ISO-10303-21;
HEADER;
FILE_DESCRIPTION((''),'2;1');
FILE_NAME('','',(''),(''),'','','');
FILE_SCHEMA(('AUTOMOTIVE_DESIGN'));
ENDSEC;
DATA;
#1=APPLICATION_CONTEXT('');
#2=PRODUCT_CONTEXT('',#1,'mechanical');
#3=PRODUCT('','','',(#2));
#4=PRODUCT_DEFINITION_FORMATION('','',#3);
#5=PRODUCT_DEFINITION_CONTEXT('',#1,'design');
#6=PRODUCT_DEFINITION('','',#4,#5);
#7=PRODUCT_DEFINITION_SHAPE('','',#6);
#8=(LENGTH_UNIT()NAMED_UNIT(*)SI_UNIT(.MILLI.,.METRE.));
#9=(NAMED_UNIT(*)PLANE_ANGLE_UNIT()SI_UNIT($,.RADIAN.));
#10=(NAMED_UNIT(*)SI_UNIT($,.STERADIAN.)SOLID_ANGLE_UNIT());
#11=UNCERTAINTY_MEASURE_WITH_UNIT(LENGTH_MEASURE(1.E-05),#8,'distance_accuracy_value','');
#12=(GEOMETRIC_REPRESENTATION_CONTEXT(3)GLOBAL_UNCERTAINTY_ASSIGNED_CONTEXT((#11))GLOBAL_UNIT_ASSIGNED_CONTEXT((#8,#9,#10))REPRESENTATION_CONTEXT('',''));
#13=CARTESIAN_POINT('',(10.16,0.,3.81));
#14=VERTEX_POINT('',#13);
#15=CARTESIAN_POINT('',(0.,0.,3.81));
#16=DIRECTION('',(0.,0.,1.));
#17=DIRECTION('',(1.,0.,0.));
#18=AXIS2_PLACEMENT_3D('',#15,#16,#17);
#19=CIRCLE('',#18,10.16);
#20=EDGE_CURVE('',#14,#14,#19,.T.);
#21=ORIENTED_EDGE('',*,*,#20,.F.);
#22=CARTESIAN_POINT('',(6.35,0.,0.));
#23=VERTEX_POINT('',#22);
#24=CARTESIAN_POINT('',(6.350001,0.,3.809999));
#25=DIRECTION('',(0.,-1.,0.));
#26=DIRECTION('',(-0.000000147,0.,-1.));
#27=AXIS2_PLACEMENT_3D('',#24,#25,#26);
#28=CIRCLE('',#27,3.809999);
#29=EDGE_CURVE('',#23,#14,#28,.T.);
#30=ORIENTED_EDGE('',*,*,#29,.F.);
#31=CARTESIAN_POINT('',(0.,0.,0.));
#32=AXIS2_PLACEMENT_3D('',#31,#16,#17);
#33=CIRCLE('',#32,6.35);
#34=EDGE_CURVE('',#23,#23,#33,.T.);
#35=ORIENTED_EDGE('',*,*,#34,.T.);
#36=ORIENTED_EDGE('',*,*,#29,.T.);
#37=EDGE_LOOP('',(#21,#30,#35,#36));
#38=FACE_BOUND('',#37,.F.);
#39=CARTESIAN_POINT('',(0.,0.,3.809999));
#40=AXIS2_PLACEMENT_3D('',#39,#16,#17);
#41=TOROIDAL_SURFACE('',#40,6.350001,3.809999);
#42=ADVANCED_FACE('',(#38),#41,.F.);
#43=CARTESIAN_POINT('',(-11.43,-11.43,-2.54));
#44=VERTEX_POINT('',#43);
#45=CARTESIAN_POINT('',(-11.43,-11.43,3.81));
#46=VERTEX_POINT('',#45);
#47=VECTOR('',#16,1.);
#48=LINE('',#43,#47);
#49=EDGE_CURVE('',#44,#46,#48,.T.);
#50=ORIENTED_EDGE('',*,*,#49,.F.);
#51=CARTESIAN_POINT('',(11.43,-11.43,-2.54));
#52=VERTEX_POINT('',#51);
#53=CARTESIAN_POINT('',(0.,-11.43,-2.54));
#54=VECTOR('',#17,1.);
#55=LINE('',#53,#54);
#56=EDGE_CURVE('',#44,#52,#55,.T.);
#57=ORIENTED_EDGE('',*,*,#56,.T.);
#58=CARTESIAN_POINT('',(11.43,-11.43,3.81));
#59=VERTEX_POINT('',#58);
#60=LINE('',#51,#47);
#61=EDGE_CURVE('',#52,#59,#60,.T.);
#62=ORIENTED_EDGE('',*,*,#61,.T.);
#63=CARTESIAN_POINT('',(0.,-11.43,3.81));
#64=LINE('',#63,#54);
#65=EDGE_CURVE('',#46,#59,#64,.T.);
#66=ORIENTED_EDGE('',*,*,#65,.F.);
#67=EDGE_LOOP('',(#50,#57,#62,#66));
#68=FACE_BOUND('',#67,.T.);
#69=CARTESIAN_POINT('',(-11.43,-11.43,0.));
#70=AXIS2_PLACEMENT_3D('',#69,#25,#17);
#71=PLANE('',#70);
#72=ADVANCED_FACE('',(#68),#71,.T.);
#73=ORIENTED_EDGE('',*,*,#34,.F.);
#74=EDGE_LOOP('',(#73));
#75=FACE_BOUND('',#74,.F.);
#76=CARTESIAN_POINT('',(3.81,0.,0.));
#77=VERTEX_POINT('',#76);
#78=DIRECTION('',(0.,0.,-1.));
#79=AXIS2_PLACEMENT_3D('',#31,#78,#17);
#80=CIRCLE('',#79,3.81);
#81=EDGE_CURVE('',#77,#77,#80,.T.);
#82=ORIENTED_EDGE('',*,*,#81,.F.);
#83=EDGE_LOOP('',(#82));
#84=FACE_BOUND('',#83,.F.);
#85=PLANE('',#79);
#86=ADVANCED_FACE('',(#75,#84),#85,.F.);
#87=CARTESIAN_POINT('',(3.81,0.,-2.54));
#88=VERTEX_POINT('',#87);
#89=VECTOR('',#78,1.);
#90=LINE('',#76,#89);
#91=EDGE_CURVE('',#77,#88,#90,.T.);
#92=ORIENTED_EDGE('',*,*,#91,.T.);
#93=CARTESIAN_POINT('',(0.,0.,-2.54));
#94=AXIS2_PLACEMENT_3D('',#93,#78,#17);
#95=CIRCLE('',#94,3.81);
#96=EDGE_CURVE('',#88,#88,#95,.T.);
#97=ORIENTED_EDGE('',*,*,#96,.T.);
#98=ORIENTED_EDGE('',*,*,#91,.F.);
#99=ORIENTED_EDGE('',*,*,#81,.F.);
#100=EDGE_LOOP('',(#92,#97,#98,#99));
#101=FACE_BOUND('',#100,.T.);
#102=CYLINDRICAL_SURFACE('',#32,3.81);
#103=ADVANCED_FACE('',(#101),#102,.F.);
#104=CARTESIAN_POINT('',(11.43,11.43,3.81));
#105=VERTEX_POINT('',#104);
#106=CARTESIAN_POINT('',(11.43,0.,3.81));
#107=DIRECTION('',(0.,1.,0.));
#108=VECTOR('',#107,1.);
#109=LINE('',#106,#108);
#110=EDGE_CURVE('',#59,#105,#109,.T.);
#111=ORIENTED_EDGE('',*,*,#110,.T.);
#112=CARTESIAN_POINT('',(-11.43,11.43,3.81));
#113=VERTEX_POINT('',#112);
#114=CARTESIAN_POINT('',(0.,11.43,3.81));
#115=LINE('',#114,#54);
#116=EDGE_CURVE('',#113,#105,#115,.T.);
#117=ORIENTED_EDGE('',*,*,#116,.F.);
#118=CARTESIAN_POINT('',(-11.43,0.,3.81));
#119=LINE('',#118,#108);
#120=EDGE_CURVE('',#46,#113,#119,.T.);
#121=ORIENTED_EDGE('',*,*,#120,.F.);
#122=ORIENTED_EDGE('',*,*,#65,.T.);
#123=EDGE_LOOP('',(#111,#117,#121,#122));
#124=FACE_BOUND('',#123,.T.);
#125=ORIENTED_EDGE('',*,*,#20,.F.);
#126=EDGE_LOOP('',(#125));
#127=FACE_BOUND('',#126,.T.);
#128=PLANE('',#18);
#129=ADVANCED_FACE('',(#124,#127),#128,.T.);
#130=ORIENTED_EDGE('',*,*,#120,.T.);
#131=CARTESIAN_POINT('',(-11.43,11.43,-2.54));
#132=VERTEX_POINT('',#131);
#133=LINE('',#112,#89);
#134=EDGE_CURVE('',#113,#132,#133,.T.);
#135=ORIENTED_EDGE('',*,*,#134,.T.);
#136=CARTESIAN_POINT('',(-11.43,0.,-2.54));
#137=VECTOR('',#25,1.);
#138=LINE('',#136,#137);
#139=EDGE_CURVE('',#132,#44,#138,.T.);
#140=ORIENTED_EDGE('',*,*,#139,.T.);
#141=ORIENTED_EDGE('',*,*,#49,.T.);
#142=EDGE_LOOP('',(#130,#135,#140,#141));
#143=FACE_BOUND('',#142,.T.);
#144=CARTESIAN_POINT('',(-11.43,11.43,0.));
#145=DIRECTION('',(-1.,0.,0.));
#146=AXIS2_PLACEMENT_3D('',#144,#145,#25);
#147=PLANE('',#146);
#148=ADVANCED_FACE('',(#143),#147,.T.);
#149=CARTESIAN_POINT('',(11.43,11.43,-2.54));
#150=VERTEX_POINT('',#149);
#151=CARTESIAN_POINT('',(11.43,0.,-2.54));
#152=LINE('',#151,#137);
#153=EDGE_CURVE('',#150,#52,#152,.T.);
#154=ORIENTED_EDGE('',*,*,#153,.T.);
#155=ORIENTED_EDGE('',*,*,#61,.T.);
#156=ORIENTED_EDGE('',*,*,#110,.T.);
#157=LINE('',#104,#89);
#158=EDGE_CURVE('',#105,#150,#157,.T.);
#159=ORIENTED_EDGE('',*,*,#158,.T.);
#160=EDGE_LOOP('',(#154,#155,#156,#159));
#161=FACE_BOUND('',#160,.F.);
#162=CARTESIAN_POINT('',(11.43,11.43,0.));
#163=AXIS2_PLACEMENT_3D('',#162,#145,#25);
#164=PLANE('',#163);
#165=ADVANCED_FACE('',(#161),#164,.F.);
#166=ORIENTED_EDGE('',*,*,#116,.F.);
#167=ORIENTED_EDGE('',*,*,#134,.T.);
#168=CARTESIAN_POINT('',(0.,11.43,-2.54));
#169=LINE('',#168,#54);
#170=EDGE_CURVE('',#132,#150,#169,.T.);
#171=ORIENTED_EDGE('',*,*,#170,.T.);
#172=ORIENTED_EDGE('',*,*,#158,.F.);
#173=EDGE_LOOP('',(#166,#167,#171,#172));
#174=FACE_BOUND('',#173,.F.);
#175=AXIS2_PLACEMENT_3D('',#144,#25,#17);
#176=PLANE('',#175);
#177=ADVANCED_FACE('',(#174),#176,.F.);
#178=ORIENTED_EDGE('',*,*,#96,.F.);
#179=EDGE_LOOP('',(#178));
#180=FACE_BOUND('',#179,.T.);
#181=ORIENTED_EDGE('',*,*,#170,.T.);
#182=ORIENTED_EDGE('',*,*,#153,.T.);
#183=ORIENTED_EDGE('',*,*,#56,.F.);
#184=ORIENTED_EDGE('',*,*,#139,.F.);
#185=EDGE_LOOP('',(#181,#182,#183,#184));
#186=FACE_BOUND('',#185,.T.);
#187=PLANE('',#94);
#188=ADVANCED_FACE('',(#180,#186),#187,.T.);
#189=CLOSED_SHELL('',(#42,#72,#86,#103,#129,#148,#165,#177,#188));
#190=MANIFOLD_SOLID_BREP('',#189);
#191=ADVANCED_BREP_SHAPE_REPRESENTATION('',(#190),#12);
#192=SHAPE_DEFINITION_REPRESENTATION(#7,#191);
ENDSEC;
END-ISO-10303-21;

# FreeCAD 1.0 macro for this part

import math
import FreeCAD as App
import Part
import Sketcher

V = App.Vector
Q = App.Units.Quantity

doc = App.newDocument("Part")
params = doc.addObject("Spreadsheet::Sheet", "Params")
for row, (alias, value) in enumerate([
    ("sketch1_width", "0.9 in"),
    ("pad1_length", "0.15 in"),
    ("sketch2_radius", "0.15 in"),
    ("sketch2_width", "0.4 in"),
    ("sketch2_height", "0.15 in"),
    ("groove_angle", "360 deg"),
    ("sketch3_diameter", "0.3 in"),
    ("sketch3_width", "0.9 in"),
    ("pad2_length", "0.1 in"),
], start=1):
    params.set(f"A{row}", alias)
    params.set(f"B{row}", "=" + value)
    params.setAlias(f"B{row}", alias)

body = doc.addObject("PartDesign::Body", "Body")

# Sketch on XY plane
sketch1 = body.newObject("Sketcher::SketchObject", "Sketch")
sketch1.AttachmentSupport = (doc.getObject("XY_Plane"), [""])
sketch1.MapMode = "FlatFace"
sketch1.addGeometry(Part.LineSegment(V(-11.43, 11.43, 0), V(-11.43, -11.43, 0)), False)
sketch1.addGeometry(Part.LineSegment(V(-11.43, -11.43, 0), V(11.43, -11.43, 0)), False)
sketch1.addGeometry(Part.LineSegment(V(11.43, -11.43, 0), V(11.43, 11.43, 0)), False)
sketch1.addGeometry(Part.LineSegment(V(11.43, 11.43, 0), V(-11.43, 11.43, 0)), False)
sketch1.addConstraint(Sketcher.Constraint("Coincident", 0, 2, 1, 1))
sketch1.addConstraint(Sketcher.Constraint("Coincident", 1, 2, 2, 1))
sketch1.addConstraint(Sketcher.Constraint("Coincident", 2, 2, 3, 1))
sketch1.addConstraint(Sketcher.Constraint("Coincident", 3, 2, 0, 1))
sketch1.addConstraint(Sketcher.Constraint("Vertical", 0))
sketch1.addConstraint(Sketcher.Constraint("Horizontal", 1))
sketch1.addConstraint(Sketcher.Constraint("Vertical", 2))
sketch1.addConstraint(Sketcher.Constraint("Horizontal", 3))
sketch1.addConstraint(Sketcher.Constraint("Symmetric", 0, 2, 2, 2, -1, 1))
sketch1.addConstraint(Sketcher.Constraint("Equal", 3, 0))
sketch1.addConstraint(Sketcher.Constraint("DistanceX", 1, 1, 1, 2, Q("0.9 in")))
sketch1.setExpression("Constraints[10]", "Params.sketch1_width")
pad1 = body.newObject("PartDesign::Pad", "Pad")
pad1.Profile = sketch1
pad1.setExpression("Length", "Params.pad1_length")

# Sketch on XZ plane
sketch2 = body.newObject("Sketcher::SketchObject", "Sketch001")
sketch2.AttachmentSupport = (doc.getObject("XZ_Plane"), [""])
sketch2.MapMode = "FlatFace"
sketch2.addGeometry(Part.LineSegment(V(0, 3.81, 0), V(0, 0, 0)), False)
sketch2.addGeometry(Part.LineSegment(V(0, 0, 0), V(6.35, 0, 0)), False)
sketch2.addGeometry(Part.ArcOfCircle(Part.Circle(V(6.350001, 3.809999, 0), V(0, 0, 1), 3.809999), math.radians(-90.000008), math.radians(0.000008)), False)
sketch2.addGeometry(Part.LineSegment(V(10.16, 3.81, 0), V(0, 3.81, 0)), False)
sketch2.addConstraint(Sketcher.Constraint("Coincident", 0, 2, 1, 1))
sketch2.addConstraint(Sketcher.Constraint("Tangent", 1, 2, 2, 1))
sketch2.addConstraint(Sketcher.Constraint("Coincident", 2, 2, 3, 1))
sketch2.addConstraint(Sketcher.Constraint("Coincident", 3, 2, 0, 1))
sketch2.addConstraint(Sketcher.Constraint("Vertical", 0))
sketch2.addConstraint(Sketcher.Constraint("Horizontal", 1))
sketch2.addConstraint(Sketcher.Constraint("Horizontal", 3))
sketch2.addConstraint(Sketcher.Constraint("Coincident", 0, 2, -1, 1))
sketch2.addConstraint(Sketcher.Constraint("Radius", 2, Q("0.15 in")))
sketch2.addConstraint(Sketcher.Constraint("DistanceX", 3, 2, 3, 1, Q("0.4 in")))
sketch2.addConstraint(Sketcher.Constraint("DistanceY", 0, 2, 0, 1, Q("0.15 in")))
sketch2.setExpression("Constraints[8]", "Params.sketch2_radius")
sketch2.setExpression("Constraints[9]", "Params.sketch2_width")
sketch2.setExpression("Constraints[10]", "Params.sketch2_height")
groove = body.newObject("PartDesign::Groove", "Groove")
groove.Profile = sketch2
groove.ReferenceAxis = (sketch2, ["V_Axis"])
groove.setExpression("Angle", "Params.groove_angle")

# Sketch on XY plane
sketch3 = body.newObject("Sketcher::SketchObject", "Sketch002")
sketch3.AttachmentSupport = (doc.getObject("XY_Plane"), [""])
sketch3.MapMode = "FlatFace"
sketch3.addGeometry(Part.LineSegment(V(-11.43, -11.43, 0), V(-11.43, 11.43, 0)), False)
sketch3.addGeometry(Part.LineSegment(V(-11.43, 11.43, 0), V(11.43, 11.43, 0)), False)
sketch3.addGeometry(Part.LineSegment(V(11.43, 11.43, 0), V(11.43, -11.43, 0)), False)
sketch3.addGeometry(Part.LineSegment(V(11.43, -11.43, 0), V(-11.43, -11.43, 0)), False)
sketch3.addGeometry(Part.Circle(V(0, 0, 0), V(0, 0, 1), 3.81), False)
sketch3.addConstraint(Sketcher.Constraint("Coincident", 0, 2, 1, 1))
sketch3.addConstraint(Sketcher.Constraint("Coincident", 1, 2, 2, 1))
sketch3.addConstraint(Sketcher.Constraint("Coincident", 2, 2, 3, 1))
sketch3.addConstraint(Sketcher.Constraint("Coincident", 3, 2, 0, 1))
sketch3.addConstraint(Sketcher.Constraint("Vertical", 0))
sketch3.addConstraint(Sketcher.Constraint("Horizontal", 1))
sketch3.addConstraint(Sketcher.Constraint("Vertical", 2))
sketch3.addConstraint(Sketcher.Constraint("Horizontal", 3))
sketch3.addConstraint(Sketcher.Constraint("Coincident", 4, 3, -1, 1))
sketch3.addConstraint(Sketcher.Constraint("Symmetric", 0, 2, 2, 2, -1, 1))
sketch3.addConstraint(Sketcher.Constraint("Equal", 3, 0))
sketch3.addConstraint(Sketcher.Constraint("Diameter", 4, Q("0.3 in")))
sketch3.addConstraint(Sketcher.Constraint("DistanceX", 1, 1, 1, 2, Q("0.9 in")))
sketch3.setExpression("Constraints[11]", "Params.sketch3_diameter")
sketch3.setExpression("Constraints[12]", "Params.sketch3_width")
pad2 = body.newObject("PartDesign::Pad", "Pad001")
pad2.Profile = sketch3
pad2.setExpression("Length", "Params.pad2_length")
pad2.Reversed = True

doc.recompute()
